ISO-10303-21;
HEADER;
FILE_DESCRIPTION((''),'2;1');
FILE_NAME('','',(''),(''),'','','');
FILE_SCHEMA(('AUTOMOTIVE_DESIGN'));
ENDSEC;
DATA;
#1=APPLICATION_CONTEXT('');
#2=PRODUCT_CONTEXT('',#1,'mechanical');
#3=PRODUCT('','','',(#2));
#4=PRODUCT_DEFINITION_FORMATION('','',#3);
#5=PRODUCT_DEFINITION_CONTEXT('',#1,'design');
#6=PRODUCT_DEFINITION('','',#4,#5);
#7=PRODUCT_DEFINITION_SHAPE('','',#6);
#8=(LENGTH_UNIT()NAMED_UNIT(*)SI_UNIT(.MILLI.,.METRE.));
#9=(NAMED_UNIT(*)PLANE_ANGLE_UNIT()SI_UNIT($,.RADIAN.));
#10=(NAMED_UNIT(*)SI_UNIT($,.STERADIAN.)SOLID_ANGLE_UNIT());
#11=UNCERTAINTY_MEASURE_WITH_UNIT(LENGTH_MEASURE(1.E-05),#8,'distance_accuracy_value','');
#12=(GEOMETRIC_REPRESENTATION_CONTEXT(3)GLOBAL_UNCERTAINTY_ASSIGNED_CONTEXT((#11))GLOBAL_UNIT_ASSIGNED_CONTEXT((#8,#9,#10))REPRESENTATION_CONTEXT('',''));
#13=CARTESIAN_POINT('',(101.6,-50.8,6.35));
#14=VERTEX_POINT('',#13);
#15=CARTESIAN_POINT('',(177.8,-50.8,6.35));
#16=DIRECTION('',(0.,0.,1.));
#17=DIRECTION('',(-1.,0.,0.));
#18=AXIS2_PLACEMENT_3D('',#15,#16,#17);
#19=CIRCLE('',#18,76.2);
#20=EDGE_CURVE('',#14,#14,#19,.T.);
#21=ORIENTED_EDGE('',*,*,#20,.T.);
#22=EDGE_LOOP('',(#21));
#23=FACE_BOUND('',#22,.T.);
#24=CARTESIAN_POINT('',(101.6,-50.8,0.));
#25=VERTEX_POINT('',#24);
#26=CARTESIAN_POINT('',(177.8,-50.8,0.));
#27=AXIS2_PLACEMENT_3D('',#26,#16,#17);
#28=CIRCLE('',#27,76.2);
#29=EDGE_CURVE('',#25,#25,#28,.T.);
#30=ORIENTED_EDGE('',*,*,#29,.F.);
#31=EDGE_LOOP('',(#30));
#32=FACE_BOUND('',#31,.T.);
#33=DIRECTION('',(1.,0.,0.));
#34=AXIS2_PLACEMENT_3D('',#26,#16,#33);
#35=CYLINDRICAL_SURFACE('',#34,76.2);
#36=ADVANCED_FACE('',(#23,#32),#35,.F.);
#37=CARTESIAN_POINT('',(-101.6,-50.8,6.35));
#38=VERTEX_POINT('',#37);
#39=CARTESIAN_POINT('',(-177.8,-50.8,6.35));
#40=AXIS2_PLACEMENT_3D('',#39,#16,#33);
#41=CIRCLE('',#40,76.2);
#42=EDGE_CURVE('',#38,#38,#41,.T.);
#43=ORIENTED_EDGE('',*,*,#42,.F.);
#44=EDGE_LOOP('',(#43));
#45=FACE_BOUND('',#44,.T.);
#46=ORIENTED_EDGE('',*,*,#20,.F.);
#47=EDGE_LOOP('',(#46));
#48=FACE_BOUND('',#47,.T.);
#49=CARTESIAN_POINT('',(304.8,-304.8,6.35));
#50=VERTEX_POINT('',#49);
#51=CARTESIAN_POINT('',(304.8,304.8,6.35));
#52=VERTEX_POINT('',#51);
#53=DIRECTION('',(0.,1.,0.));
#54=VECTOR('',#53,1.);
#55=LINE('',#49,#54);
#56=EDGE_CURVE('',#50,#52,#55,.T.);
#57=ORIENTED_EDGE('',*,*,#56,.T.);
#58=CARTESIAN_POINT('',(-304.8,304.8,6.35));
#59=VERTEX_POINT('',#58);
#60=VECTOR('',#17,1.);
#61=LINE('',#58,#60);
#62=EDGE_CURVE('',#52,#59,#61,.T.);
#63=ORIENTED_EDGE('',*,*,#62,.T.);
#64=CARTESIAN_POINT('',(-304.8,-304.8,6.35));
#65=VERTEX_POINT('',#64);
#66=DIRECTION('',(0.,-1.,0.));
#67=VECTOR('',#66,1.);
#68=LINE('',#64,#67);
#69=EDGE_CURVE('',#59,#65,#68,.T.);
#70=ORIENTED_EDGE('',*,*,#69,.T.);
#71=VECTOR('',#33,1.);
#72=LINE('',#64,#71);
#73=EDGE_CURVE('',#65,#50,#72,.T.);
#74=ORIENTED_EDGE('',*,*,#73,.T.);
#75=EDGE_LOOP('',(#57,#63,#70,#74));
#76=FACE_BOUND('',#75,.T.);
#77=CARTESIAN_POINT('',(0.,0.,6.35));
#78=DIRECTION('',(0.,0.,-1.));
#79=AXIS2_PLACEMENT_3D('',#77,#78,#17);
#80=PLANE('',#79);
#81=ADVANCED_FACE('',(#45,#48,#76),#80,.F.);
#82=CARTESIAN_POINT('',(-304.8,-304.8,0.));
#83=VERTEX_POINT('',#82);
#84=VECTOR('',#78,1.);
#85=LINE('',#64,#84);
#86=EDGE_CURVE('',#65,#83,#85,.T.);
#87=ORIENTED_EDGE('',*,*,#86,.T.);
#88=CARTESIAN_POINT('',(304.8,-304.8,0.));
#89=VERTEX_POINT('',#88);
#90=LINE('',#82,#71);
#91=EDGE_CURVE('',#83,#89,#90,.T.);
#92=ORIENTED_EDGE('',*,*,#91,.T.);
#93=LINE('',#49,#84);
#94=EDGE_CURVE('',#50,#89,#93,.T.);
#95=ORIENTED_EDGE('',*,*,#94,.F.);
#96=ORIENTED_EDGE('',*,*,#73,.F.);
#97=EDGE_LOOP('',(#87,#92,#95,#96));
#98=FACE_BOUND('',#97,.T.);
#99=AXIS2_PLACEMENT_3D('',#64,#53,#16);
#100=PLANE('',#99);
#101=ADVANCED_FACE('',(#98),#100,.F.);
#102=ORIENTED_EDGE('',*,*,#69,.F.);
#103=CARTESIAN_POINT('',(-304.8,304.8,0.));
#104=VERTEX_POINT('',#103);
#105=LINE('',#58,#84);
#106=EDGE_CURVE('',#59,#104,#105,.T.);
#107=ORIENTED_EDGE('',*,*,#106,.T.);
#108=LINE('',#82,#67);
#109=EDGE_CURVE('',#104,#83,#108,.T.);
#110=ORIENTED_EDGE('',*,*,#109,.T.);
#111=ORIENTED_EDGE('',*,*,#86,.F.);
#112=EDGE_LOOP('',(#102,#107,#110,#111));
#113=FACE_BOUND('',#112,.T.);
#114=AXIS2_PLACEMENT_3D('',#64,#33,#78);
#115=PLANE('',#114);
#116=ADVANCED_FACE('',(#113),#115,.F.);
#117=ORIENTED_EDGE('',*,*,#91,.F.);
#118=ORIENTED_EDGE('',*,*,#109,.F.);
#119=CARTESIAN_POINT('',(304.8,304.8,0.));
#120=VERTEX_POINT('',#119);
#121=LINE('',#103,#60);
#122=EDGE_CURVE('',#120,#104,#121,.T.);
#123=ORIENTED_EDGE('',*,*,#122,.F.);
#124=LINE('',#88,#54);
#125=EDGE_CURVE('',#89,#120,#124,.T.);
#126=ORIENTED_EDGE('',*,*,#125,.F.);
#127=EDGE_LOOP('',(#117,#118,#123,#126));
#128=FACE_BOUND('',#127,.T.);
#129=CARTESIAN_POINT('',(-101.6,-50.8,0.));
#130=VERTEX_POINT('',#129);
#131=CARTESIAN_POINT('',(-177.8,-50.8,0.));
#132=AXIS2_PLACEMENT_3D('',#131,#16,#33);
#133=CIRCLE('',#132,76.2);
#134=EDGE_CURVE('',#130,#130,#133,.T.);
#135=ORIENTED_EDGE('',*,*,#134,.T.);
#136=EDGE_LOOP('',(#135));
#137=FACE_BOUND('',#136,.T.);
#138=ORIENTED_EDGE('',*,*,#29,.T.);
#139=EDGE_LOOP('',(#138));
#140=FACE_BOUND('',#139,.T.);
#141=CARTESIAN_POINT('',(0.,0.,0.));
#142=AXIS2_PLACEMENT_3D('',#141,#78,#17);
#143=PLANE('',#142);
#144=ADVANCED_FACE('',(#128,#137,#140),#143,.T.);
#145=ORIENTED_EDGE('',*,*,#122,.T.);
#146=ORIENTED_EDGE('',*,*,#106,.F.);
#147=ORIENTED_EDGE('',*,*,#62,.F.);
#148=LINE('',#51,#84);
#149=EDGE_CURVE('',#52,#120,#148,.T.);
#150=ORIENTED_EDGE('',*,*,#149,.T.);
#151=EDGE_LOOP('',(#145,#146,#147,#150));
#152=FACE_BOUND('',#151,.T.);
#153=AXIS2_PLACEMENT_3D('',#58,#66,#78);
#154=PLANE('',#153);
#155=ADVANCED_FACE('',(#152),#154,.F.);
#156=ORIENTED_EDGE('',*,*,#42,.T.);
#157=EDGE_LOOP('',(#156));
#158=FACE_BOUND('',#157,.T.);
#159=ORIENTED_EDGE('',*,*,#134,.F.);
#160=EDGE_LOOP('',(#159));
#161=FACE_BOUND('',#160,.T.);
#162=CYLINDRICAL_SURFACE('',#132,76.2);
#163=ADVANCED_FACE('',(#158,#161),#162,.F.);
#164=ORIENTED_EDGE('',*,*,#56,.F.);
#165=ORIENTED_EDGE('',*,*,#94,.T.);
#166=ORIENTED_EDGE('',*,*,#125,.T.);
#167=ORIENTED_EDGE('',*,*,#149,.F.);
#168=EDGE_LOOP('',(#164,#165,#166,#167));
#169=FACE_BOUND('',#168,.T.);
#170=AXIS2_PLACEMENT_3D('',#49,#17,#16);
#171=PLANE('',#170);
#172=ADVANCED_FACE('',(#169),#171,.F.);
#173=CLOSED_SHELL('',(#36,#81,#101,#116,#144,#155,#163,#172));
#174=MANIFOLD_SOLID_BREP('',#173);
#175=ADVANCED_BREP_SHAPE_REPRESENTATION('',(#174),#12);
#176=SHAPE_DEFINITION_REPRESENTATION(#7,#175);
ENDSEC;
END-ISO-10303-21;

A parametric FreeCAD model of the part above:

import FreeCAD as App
import Part
import Sketcher
Q = App.Units.Quantity

doc = App.newDocument("Part")
params = doc.addObject("Spreadsheet::Sheet", "Params")
for row, (alias, value) in enumerate([
    ("sketch1_width", "24 in"),
    ("pad1_length", "0.25 in"),
    ("sketch2_diameter", "6 in"),
], start=1):
    params.set(f"A{row}", alias)
    params.set(f"B{row}", "=" + value)
    params.setAlias(f"B{row}", alias)

body = doc.addObject("PartDesign::Body", "Body")

sketch1 = doc.addObject("Sketcher::SketchObject", "Sketch")
body.addObject(sketch1)
sketch1.AttachmentSupport = (doc.XY_Plane, [""])
sketch1.MapMode = "FlatFace"
sketch1.addGeometry(Part.LineSegment(App.Vector(-305, 305, 0), App.Vector(-305, -305, 0)), False)
sketch1.addGeometry(Part.LineSegment(App.Vector(-305, -305, 0), App.Vector(305, -305, 0)), False)
sketch1.addGeometry(Part.LineSegment(App.Vector(305, -305, 0), App.Vector(305, 305, 0)), False)
sketch1.addGeometry(Part.LineSegment(App.Vector(305, 305, 0), App.Vector(-305, 305, 0)), False)
sketch1.addConstraint(Sketcher.Constraint("Coincident", 0, 2, 1, 1))
sketch1.addConstraint(Sketcher.Constraint("Coincident", 1, 2, 2, 1))
sketch1.addConstraint(Sketcher.Constraint("Coincident", 2, 2, 3, 1))
sketch1.addConstraint(Sketcher.Constraint("Coincident", 3, 2, 0, 1))
sketch1.addConstraint(Sketcher.Constraint("Vertical", 0))
sketch1.addConstraint(Sketcher.Constraint("Horizontal", 1))
sketch1.addConstraint(Sketcher.Constraint("Vertical", 2))
sketch1.addConstraint(Sketcher.Constraint("Horizontal", 3))
sketch1.addConstraint(Sketcher.Constraint("Symmetric", 0, 2, 2, 2, -1, 1))
sketch1.addConstraint(Sketcher.Constraint("Equal", 3, 0))
sketch1.addConstraint(Sketcher.Constraint("DistanceX", 1, 1, 1, 2, Q("24 in")))
sketch1.setExpression("Constraints[10]", "Params.sketch1_width")
pad1 = doc.addObject("PartDesign::Pad", "Pad")
body.addObject(pad1)
pad1.Profile = sketch1
pad1.setExpression("Length", "Params.pad1_length")

sketch2 = doc.addObject("Sketcher::SketchObject", "Sketch001")
body.addObject(sketch2)
sketch2.AttachmentSupport = (doc.XY_Plane, [""])
sketch2.MapMode = "FlatFace"
sketch2.AttachmentOffset = App.Placement(App.Vector(0, 0, 0.25 * 25.4), App.Rotation())
sketch2.addGeometry(Part.Circle(App.Vector(-178, -51, 0), App.Vector(0, 0, 1), 76), False)
sketch2.addGeometry(Part.Circle(App.Vector(178, -51, 0), App.Vector(0, 0, 1), 76), False)
sketch2.addConstraint(Sketcher.Constraint("Equal", 0, 1))
sketch2.addConstraint(Sketcher.Constraint("Symmetric", 0, 3, 1, 3, -2))
sketch2.addConstraint(Sketcher.Constraint("Diameter", 0, Q("6 in")))
sketch2.addConstraint(Sketcher.Constraint("DistanceX", 0, 3, -1, 1, Q("7 in")))
sketch2.addConstraint(Sketcher.Constraint("DistanceY", 0, 3, -1, 1, Q("2 in")))
sketch2.setExpression("Constraints[2]", "Params.sketch2_diameter")
pocket1 = doc.addObject("PartDesign::Pocket", "Pocket")
body.addObject(pocket1)
pocket1.Profile = sketch2
pocket1.Type = "ThroughAll"

doc.recompute()
